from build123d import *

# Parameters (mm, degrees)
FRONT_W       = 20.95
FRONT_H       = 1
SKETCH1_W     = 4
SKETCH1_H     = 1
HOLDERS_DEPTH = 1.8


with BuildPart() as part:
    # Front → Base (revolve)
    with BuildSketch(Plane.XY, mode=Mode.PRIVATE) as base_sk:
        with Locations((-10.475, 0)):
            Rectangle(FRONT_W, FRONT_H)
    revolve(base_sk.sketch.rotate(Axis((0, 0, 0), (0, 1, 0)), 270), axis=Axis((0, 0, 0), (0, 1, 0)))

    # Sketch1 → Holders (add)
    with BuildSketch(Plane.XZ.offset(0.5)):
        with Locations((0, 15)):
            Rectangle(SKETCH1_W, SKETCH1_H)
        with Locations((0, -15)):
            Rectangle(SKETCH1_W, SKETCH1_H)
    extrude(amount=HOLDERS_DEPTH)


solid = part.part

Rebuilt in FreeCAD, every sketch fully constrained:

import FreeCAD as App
import Part
import Sketcher
from FreeCAD import Vector

doc = App.newDocument("Part")
body = doc.addObject("PartDesign::Body", "Body")

# Sketch on XY plane
sketch1 = body.newObject("Sketcher::SketchObject", "Sketch")
sketch1.AttachmentSupport = (doc.getObject("XY_Plane"), [""])
sketch1.MapMode = "FlatFace"
sketch1.addGeometry([
    Part.LineSegment(Vector(-20.9, 0.5, 0), Vector(-20.9, -0.5, 0)),
    Part.LineSegment(Vector(-20.9, -0.5, 0), Vector(0, -0.5, 0)),
    Part.LineSegment(Vector(0, -0.5, 0), Vector(0, 0.5, 0)),
    Part.LineSegment(Vector(0, 0.5, 0), Vector(-20.9, 0.5, 0)),
], False)
sketch1.addConstraint([
    Sketcher.Constraint("Coincident", 0, 2, 1, 1),
    Sketcher.Constraint("Coincident", 1, 2, 2, 1),
    Sketcher.Constraint("Coincident", 2, 2, 3, 1),
    Sketcher.Constraint("Coincident", 3, 2, 0, 1),
    Sketcher.Constraint("Vertical", 0),
    Sketcher.Constraint("Horizontal", 1),
    Sketcher.Constraint("Vertical", 2),
    Sketcher.Constraint("Horizontal", 3),
    Sketcher.Constraint("Symmetric", 1, 2, 2, 2, -1, 1),
    Sketcher.Constraint("DistanceY", 0, 2, 0, 1, 1.0),
    Sketcher.Constraint("DistanceX", 1, 1, 1, 2, 20.95),
])
revolution = body.newObject("PartDesign::Revolution", "Revolution")
revolution.Profile = sketch1
revolution.ReferenceAxis = (sketch1, ["V_Axis"])
revolution.Angle = 360

# Sketch on XZ plane
sketch2 = body.newObject("Sketcher::SketchObject", "Sketch001")
sketch2.AttachmentSupport = (doc.getObject("XZ_Plane"), [""])
sketch2.MapMode = "FlatFace"
sketch2.AttachmentOffset = App.Placement(Vector(0, 0, 0.5), App.Rotation())
sketch2.addGeometry([
    Part.LineSegment(Vector(-2, 15.5, 0), Vector(-2, 14.5, 0)),  # 0
    Part.LineSegment(Vector(-2, 14.5, 0), Vector(2, 14.5, 0)),  # 1
    Part.LineSegment(Vector(2, 14.5, 0), Vector(2, 15.5, 0)),  # 2
    Part.LineSegment(Vector(2, 15.5, 0), Vector(-2, 15.5, 0)),  # 3
    Part.LineSegment(Vector(-2, -14.5, 0), Vector(-2, -15.5, 0)),  # 4
    Part.LineSegment(Vector(-2, -15.5, 0), Vector(2, -15.5, 0)),  # 5
    Part.LineSegment(Vector(2, -15.5, 0), Vector(2, -14.5, 0)),  # 6
    Part.LineSegment(Vector(2, -14.5, 0), Vector(-2, -14.5, 0)),  # 7
], False)
sketch2.addConstraint([
    Sketcher.Constraint("Coincident", 0, 2, 1, 1),
    Sketcher.Constraint("Coincident", 1, 2, 2, 1),
    Sketcher.Constraint("Coincident", 2, 2, 3, 1),
    Sketcher.Constraint("Coincident", 3, 2, 0, 1),
    Sketcher.Constraint("Coincident", 4, 2, 5, 1),
    Sketcher.Constraint("Coincident", 5, 2, 6, 1),
    Sketcher.Constraint("Coincident", 6, 2, 7, 1),
    Sketcher.Constraint("Coincident", 7, 2, 4, 1),
    Sketcher.Constraint("Vertical", 0),
    Sketcher.Constraint("Horizontal", 1),
    Sketcher.Constraint("Vertical", 2),
    Sketcher.Constraint("Horizontal", 3),
    Sketcher.Constraint("Vertical", 4),
    Sketcher.Constraint("Horizontal", 5),
    Sketcher.Constraint("Vertical", 6),
    Sketcher.Constraint("Horizontal", 7),
    Sketcher.Constraint("Symmetric", 2, 2, 4, 2, -1, 1),
    Sketcher.Constraint("Symmetric", 0, 2, 6, 2, -1, 1),
    Sketcher.Constraint("Vertical", 3, 2, 4, 2),
    Sketcher.Constraint("DistanceX", 1, 1, 1, 2, 4.0),
    Sketcher.Constraint("DistanceY", 0, 2, 0, 1, 1.0),
    Sketcher.Constraint("DistanceY", 4, 2, 0, 2, 30.0),
])
pad1 = body.newObject("PartDesign::Pad", "Pad")
pad1.Profile = sketch2
pad1.Length = 1.8

doc.recompute()
